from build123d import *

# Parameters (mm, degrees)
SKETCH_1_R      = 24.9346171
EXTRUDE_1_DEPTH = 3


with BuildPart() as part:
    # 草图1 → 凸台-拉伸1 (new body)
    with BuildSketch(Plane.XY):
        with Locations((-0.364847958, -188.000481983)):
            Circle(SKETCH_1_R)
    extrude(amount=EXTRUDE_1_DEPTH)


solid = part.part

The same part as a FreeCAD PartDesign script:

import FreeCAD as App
import Part
import Sketcher

V = App.Vector

doc = App.newDocument("Part")
params = doc.addObject("Spreadsheet::Sheet", "Params")
for row, (alias, value) in enumerate([
    ("pad1_length", "3 mm"),
], start=1):
    params.set(f"A{row}", alias)
    params.set(f"B{row}", "=" + value)
    params.setAlias(f"B{row}", alias)

body = doc.addObject("PartDesign::Body", "Body")

# Sketch on XY plane
sketch1 = body.newObject("Sketcher::SketchObject", "Sketch")
sketch1.AttachmentSupport = (doc.getObject("XY_Plane"), [""])
sketch1.MapMode = "FlatFace"
sketch1.addGeometry(Part.Circle(V(0, -188, 0), V(0, 0, 1), 25), False)
sketch1.addConstraint(Sketcher.Constraint("Diameter", 0, 49.869234))
sketch1.addConstraint(Sketcher.Constraint("DistanceY", 0, 3, -1, 1, 188.000482))
sketch1.addConstraint(Sketcher.Constraint("DistanceX", 0, 3, -1, 1, 0.364848))
pad1 = body.newObject("PartDesign::Pad", "Pad")
pad1.Profile = sketch1
pad1.setExpression("Length", "Params.pad1_length")

doc.recompute()
